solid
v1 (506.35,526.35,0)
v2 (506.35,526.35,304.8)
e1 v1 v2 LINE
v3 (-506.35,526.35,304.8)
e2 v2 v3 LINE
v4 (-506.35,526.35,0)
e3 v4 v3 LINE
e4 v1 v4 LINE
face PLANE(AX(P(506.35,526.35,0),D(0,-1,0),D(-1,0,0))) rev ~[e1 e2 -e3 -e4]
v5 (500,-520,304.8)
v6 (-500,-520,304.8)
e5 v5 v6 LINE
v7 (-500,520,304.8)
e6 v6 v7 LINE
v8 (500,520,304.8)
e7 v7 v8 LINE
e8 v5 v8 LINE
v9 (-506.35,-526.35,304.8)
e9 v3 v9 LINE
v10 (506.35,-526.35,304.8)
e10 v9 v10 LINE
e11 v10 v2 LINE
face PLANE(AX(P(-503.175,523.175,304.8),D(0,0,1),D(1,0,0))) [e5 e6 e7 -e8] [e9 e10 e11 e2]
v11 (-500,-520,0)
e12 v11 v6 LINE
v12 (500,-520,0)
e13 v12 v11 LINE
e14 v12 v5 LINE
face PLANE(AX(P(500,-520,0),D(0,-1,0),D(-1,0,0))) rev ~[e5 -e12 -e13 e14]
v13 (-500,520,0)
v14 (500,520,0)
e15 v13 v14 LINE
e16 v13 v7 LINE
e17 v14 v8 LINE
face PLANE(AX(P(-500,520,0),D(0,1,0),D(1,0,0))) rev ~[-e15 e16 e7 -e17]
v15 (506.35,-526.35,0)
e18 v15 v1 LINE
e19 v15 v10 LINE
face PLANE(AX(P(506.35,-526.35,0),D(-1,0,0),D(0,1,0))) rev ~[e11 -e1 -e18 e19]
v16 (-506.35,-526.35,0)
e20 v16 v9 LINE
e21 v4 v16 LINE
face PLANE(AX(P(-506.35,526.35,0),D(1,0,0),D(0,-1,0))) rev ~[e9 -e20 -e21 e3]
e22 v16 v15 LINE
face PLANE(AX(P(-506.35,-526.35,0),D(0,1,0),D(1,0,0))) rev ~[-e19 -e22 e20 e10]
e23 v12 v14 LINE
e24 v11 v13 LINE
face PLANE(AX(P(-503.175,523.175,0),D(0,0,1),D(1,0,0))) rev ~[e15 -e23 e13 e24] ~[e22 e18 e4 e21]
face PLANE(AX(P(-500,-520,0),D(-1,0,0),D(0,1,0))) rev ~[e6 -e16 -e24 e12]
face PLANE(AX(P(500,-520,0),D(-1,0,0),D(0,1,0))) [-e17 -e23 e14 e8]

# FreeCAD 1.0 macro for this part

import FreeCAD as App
import Part
import Sketcher
from FreeCAD import Vector

doc = App.newDocument("Part")
body = doc.addObject("PartDesign::Body", "Body")

sketch1 = doc.addObject("Sketcher::SketchObject", "Sketch")
body.addObject(sketch1)
sketch1.AttachmentSupport = (doc.XY_Plane, [""])
sketch1.MapMode = "FlatFace"
sketch1.addGeometry(Part.LineSegment(Vector(-506, 526, 0), Vector(-506, -526, 0)), False)
sketch1.addGeometry(Part.LineSegment(Vector(-506, -526, 0), Vector(506, -526, 0)), False)
sketch1.addGeometry(Part.LineSegment(Vector(506, -526, 0), Vector(506, 526, 0)), False)
sketch1.addGeometry(Part.LineSegment(Vector(506, 526, 0), Vector(-506, 526, 0)), False)
sketch1.addGeometry(Part.LineSegment(Vector(-500, 520, 0), Vector(500, 520, 0)), False)
sketch1.addGeometry(Part.LineSegment(Vector(500, 520, 0), Vector(500, -520, 0)), False)
sketch1.addGeometry(Part.LineSegment(Vector(500, -520, 0), Vector(-500, -520, 0)), False)
sketch1.addGeometry(Part.LineSegment(Vector(-500, -520, 0), Vector(-500, 520, 0)), False)
sketch1.addConstraint(Sketcher.Constraint("Coincident", 0, 2, 1, 1))
sketch1.addConstraint(Sketcher.Constraint("Coincident", 1, 2, 2, 1))
sketch1.addConstraint(Sketcher.Constraint("Coincident", 2, 2, 3, 1))
sketch1.addConstraint(Sketcher.Constraint("Coincident", 3, 2, 0, 1))
sketch1.addConstraint(Sketcher.Constraint("Coincident", 4, 2, 5, 1))
sketch1.addConstraint(Sketcher.Constraint("Coincident", 5, 2, 6, 1))
sketch1.addConstraint(Sketcher.Constraint("Coincident", 6, 2, 7, 1))
sketch1.addConstraint(Sketcher.Constraint("Coincident", 7, 2, 4, 1))
sketch1.addConstraint(Sketcher.Constraint("Vertical", 0))
sketch1.addConstraint(Sketcher.Constraint("Horizontal", 1))
sketch1.addConstraint(Sketcher.Constraint("Vertical", 2))
sketch1.addConstraint(Sketcher.Constraint("Horizontal", 3))
sketch1.addConstraint(Sketcher.Constraint("Horizontal", 4))
sketch1.addConstraint(Sketcher.Constraint("Vertical", 5))
sketch1.addConstraint(Sketcher.Constraint("Horizontal", 6))
sketch1.addConstraint(Sketcher.Constraint("Vertical", 7))
sketch1.addConstraint(Sketcher.Constraint("Symmetric", 0, 2, 2, 2, -1, 1))
sketch1.addConstraint(Sketcher.Constraint("Symmetric", 4, 2, 6, 2, -1, 1))
sketch1.addConstraint(Sketcher.Constraint("DistanceX", 4, 1, 4, 2, 1000.0))
sketch1.addConstraint(Sketcher.Constraint("DistanceY", 5, 2, 5, 1, 1040.0))
sketch1.addConstraint(Sketcher.Constraint("DistanceX", 1, 1, 1, 2, 1012.7))
sketch1.addConstraint(Sketcher.Constraint("DistanceY", 0, 2, 0, 1, 1052.7))
pad1 = doc.addObject("PartDesign::Pad", "Pad")
body.addObject(pad1)
pad1.Profile = sketch1
pad1.Length = 304.8

doc.recompute()
